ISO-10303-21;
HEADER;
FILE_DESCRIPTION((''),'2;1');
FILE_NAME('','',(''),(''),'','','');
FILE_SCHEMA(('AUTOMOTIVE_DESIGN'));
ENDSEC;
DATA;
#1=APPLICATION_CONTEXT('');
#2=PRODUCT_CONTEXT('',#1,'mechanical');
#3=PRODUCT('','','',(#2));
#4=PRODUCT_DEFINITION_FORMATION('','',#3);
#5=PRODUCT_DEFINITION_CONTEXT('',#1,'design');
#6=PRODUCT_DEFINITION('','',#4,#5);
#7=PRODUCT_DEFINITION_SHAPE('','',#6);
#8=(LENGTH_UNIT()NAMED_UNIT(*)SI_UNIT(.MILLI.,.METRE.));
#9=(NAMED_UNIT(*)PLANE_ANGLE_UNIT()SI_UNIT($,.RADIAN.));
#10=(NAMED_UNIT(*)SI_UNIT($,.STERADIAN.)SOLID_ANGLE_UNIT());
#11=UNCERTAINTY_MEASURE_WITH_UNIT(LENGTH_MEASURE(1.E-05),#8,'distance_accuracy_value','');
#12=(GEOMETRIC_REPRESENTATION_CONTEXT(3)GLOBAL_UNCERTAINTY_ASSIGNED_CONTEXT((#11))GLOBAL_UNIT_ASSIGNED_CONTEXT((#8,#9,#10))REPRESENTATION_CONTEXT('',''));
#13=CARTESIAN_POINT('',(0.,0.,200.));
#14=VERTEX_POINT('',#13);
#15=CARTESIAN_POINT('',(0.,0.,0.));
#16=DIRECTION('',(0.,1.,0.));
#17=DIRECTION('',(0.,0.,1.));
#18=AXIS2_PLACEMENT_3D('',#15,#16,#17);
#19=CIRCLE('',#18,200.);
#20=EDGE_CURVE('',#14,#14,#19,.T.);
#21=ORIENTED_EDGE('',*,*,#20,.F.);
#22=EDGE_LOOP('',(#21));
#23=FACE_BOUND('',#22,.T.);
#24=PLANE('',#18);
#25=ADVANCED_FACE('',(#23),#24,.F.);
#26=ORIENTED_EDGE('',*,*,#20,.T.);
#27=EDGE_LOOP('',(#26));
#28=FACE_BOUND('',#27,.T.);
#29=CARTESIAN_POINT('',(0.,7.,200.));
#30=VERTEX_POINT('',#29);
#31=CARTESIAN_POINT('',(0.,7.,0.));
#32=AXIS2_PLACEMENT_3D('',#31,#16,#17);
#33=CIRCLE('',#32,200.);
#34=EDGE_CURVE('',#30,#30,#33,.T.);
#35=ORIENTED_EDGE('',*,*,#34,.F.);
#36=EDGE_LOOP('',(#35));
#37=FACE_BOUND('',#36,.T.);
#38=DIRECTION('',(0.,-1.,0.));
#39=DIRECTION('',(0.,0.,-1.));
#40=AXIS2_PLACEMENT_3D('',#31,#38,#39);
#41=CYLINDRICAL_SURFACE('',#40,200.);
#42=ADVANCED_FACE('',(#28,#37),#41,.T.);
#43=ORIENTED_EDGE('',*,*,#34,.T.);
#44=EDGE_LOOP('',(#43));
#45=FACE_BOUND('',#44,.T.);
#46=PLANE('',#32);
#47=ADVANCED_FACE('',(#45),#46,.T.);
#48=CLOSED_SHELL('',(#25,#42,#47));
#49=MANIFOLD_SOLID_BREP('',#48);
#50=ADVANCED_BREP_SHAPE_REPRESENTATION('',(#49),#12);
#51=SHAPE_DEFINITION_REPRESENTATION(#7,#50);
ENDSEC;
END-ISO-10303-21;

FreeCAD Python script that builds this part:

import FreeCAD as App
import Part
import Sketcher

V = App.Vector
Q = App.Units.Quantity

doc = App.newDocument("Part")
body = doc.addObject("PartDesign::Body", "Body")

# Sketch on XZ plane
sketch1 = body.newObject("Sketcher::SketchObject", "Sketch")
sketch1.AttachmentSupport = (doc.getObject("XZ_Plane"), [""])
sketch1.MapMode = "FlatFace"
sketch1.addGeometry(Part.Circle(V(0, 0, 0), V(0, 0, 1), 200), False)
sketch1.addConstraint([
    Sketcher.Constraint("Coincident", 0, 3, -1, 1),
    Sketcher.Constraint("Diameter", 0, Q("400 mm")),
])
pad1 = body.newObject("PartDesign::Pad", "Pad")
pad1.Profile = sketch1
pad1.Length = 7
pad1.Reversed = True

doc.recompute()
